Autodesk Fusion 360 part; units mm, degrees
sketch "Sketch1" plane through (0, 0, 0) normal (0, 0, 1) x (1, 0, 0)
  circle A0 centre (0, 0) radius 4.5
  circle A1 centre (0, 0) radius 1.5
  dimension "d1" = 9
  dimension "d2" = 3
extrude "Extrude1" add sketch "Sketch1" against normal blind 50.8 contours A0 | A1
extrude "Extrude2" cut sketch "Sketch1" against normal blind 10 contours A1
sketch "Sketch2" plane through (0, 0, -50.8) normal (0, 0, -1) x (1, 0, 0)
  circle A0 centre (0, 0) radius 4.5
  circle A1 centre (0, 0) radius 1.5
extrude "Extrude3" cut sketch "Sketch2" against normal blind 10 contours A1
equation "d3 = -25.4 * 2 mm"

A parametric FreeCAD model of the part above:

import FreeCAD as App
import Part
import Sketcher
Q = App.Units.Quantity

doc = App.newDocument("Part")
params = doc.addObject("Spreadsheet::Sheet", "Params")
for row, (alias, value) in enumerate([
    ("sketch1_diameter", "9 mm"),
    ("pad1_length", "50.8 mm"),
    ("sketch2_diameter", "3 mm"),
    ("pocket1_length", "10 mm"),
    ("sketch3_diameter", "3 mm"),
    ("pocket2_length", "10 mm"),
], start=1):
    params.set(f"A{row}", alias)
    params.set(f"B{row}", "=" + value)
    params.setAlias(f"B{row}", alias)

body = doc.addObject("PartDesign::Body", "Body")

# Sketch on XY plane
sketch1 = body.newObject("Sketcher::SketchObject", "Sketch")
sketch1.AttachmentSupport = (doc.getObject("XY_Plane"), [""])
sketch1.MapMode = "FlatFace"
sketch1.addGeometry(Part.Circle(App.Vector(0, 0, 0), App.Vector(0, 0, 1), 4.5), False)
sketch1.addConstraint(Sketcher.Constraint("Coincident", 0, 3, -1, 1))
sketch1.addConstraint(Sketcher.Constraint("Diameter", 0, Q("9 mm")))
sketch1.setExpression("Constraints[1]", "Params.sketch1_diameter")
pad1 = body.newObject("PartDesign::Pad", "Pad")
pad1.Profile = sketch1
pad1.setExpression("Length", "Params.pad1_length")
pad1.Reversed = True

# Sketch on XY plane
sketch2 = body.newObject("Sketcher::SketchObject", "Sketch001")
sketch2.AttachmentSupport = (doc.getObject("XY_Plane"), [""])
sketch2.MapMode = "FlatFace"
sketch2.addGeometry(Part.Circle(App.Vector(0, 0, 0), App.Vector(0, 0, 1), 1.5), False)
sketch2.addConstraint(Sketcher.Constraint("Coincident", 0, 3, -1, 1))
sketch2.addConstraint(Sketcher.Constraint("Diameter", 0, Q("3 mm")))
sketch2.setExpression("Constraints[1]", "Params.sketch2_diameter")
pocket1 = body.newObject("PartDesign::Pocket", "Pocket")
pocket1.Profile = sketch2
pocket1.setExpression("Length", "Params.pocket1_length")

# Sketch on XY plane
sketch3 = body.newObject("Sketcher::SketchObject", "Sketch002")
sketch3.AttachmentSupport = (doc.getObject("XY_Plane"), [""])
sketch3.MapMode = "FlatFace"
sketch3.AttachmentOffset = App.Placement(App.Vector(0, 0, -50.8), App.Rotation())
sketch3.addGeometry(Part.Circle(App.Vector(0, 0, 0), App.Vector(0, 0, 1), 1.5), False)
sketch3.addConstraint(Sketcher.Constraint("Coincident", 0, 3, -1, 1))
sketch3.addConstraint(Sketcher.Constraint("Diameter", 0, Q("3 mm")))
sketch3.setExpression("Constraints[1]", "Params.sketch3_diameter")
pocket2 = body.newObject("PartDesign::Pocket", "Pocket001")
pocket2.Profile = sketch3
pocket2.setExpression("Length", "Params.pocket2_length")
pocket2.Reversed = True

doc.recompute()
